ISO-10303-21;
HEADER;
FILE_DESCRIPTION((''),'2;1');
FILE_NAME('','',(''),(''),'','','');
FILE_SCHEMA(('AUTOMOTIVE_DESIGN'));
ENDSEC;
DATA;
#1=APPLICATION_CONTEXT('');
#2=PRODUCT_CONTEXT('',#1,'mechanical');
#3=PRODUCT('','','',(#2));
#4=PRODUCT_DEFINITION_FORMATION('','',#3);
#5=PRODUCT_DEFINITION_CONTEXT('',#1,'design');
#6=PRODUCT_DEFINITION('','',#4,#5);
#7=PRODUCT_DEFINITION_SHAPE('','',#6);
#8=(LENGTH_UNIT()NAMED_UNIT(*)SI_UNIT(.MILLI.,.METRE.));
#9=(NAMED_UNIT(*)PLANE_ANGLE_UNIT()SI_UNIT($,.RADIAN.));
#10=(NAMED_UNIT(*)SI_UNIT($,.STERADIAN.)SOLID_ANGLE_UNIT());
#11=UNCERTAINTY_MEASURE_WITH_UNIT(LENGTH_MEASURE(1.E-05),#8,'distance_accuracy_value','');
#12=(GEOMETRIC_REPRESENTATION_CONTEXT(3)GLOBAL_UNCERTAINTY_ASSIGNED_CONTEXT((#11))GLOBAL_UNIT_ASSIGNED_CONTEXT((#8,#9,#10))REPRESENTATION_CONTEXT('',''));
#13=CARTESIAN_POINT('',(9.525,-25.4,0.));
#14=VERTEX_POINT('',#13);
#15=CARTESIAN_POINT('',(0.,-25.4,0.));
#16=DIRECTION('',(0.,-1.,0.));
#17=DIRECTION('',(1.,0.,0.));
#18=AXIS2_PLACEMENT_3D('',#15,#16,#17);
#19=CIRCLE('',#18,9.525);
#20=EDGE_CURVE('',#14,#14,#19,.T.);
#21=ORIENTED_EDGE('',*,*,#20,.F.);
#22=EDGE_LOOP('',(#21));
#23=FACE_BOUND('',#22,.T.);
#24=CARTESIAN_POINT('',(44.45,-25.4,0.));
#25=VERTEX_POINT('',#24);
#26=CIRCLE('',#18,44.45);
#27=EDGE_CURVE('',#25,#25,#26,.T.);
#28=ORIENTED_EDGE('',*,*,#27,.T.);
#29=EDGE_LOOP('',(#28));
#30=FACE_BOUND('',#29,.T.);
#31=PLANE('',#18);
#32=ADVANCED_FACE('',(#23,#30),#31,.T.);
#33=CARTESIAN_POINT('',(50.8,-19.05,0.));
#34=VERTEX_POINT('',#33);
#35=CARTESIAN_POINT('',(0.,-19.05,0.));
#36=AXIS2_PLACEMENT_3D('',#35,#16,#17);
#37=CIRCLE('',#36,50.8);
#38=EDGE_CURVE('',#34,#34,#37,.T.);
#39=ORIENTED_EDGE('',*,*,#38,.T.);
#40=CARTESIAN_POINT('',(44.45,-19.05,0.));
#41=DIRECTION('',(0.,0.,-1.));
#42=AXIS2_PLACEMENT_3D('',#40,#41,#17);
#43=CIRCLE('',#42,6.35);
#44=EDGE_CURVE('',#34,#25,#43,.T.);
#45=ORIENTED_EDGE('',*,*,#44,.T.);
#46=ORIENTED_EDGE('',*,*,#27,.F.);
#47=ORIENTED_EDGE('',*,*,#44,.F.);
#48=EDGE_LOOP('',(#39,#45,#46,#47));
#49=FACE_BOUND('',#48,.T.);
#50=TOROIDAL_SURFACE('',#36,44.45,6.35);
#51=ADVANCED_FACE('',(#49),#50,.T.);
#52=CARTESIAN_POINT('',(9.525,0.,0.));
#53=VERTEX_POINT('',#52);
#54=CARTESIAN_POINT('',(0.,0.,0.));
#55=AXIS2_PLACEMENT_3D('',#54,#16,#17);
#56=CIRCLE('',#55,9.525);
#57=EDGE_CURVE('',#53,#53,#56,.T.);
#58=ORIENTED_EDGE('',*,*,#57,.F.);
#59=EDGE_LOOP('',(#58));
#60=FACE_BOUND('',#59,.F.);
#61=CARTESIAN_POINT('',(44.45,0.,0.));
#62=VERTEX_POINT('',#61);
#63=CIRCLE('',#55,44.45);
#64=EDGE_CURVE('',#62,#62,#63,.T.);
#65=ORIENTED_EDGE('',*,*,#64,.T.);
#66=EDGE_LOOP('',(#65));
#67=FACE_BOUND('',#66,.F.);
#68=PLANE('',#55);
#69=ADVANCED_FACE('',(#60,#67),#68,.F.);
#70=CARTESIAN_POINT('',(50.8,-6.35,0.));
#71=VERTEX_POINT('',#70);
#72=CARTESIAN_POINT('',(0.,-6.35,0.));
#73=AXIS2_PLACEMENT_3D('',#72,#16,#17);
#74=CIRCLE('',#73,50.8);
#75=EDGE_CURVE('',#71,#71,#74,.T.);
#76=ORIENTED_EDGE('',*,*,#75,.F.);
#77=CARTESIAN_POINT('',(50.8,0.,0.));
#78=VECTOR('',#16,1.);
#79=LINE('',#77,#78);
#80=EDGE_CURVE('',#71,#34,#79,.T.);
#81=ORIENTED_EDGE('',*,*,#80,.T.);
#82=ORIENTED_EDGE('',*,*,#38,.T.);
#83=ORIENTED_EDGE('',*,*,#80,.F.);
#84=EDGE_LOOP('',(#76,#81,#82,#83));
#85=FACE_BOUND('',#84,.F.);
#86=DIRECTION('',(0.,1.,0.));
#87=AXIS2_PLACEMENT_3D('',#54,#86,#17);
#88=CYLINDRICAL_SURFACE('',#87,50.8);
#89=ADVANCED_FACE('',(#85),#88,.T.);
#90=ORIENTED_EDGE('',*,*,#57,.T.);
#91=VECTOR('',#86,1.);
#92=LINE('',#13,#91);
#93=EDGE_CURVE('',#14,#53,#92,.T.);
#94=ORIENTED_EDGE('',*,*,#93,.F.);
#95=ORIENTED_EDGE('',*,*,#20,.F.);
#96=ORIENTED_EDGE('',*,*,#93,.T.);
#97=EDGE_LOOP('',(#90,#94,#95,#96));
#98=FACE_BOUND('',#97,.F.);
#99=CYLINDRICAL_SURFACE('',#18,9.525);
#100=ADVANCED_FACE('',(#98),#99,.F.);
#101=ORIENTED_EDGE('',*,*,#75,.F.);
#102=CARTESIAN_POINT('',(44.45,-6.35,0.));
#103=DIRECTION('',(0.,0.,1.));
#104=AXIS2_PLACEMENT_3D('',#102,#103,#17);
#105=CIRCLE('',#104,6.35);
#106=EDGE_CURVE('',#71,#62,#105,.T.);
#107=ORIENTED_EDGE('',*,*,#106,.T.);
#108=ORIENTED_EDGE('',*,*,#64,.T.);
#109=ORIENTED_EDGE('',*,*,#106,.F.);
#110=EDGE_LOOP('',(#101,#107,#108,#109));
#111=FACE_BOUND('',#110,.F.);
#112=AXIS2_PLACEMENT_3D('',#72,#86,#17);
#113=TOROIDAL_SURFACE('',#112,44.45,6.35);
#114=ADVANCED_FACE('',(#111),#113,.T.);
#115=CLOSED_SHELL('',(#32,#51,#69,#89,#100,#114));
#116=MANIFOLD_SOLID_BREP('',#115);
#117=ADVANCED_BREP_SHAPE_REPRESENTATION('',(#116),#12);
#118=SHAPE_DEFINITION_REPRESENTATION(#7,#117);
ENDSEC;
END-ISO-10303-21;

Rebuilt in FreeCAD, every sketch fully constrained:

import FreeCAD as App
import Part
import Sketcher
Q = App.Units.Quantity


def edges_at(feature, points):
    """Names of the edges that pass closest to the given points."""
    edges = feature.Shape.Edges
    near = lambda p: min(range(len(edges)), key=lambda i: edges[i].distToShape(Part.Vertex(*p))[0])
    return sorted({f"Edge{near(p) + 1}" for p in points})

doc = App.newDocument("Part")
body = doc.addObject("PartDesign::Body", "Body")

# Sketch on XZ plane
sketch1 = body.newObject("Sketcher::SketchObject", "Sketch")
sketch1.AttachmentSupport = (doc.getObject("XZ_Plane"), [""])
sketch1.MapMode = "FlatFace"
sketch1.addGeometry(Part.Circle(App.Vector(0, 0, 0), App.Vector(0, 0, 1), 51), False)
sketch1.addConstraint([
    Sketcher.Constraint("Coincident", 0, 3, -1, 1),
    Sketcher.Constraint("Diameter", 0, Q("4 in")),
])
pad1 = body.newObject("PartDesign::Pad", "Pad")
pad1.Profile = sketch1
pad1.Length = Q("1 in")

# Sketch on XZ plane
sketch2 = body.newObject("Sketcher::SketchObject", "Sketch001")
sketch2.AttachmentSupport = (doc.getObject("XZ_Plane"), [""])
sketch2.MapMode = "FlatFace"
sketch2.AttachmentOffset = App.Placement(App.Vector(0, 0, 1 * 25.4), App.Rotation())
sketch2.addGeometry(Part.Circle(App.Vector(0, 0, 0), App.Vector(0, 0, 1), 10), False)
sketch2.addConstraint([
    Sketcher.Constraint("Coincident", 0, 3, -1, 1),
    Sketcher.Constraint("Diameter", 0, Q("0.75 in")),
])
pocket1 = body.newObject("PartDesign::Pocket", "Pocket")
pocket1.Profile = sketch2
pocket1.Type = "ThroughAll"
doc.recompute()

fillet = body.newObject("PartDesign::Fillet", "Fillet")
fillet.Base = (pocket1, edges_at(pocket1, [(-50.8, -25.4, 0), (-50.8, 0, 0)]))
fillet.Radius = Q("0.25 in")

doc.recompute()
